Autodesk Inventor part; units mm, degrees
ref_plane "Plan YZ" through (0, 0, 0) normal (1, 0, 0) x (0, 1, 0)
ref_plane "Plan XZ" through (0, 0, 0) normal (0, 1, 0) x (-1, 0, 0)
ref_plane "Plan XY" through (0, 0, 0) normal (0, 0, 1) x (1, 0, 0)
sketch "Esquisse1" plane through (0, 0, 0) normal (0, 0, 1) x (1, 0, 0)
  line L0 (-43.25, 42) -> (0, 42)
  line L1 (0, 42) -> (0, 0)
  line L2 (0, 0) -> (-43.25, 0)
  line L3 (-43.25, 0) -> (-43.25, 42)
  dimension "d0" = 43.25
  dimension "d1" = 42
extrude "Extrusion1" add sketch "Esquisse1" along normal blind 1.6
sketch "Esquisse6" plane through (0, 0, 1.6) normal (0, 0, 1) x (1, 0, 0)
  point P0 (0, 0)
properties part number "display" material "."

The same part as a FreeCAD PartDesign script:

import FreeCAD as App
import Part
import Sketcher


def add_polygon(sketch, points):
    """Adds a closed chain of lines whose ends are joined by coincident constraints."""
    first, n = sketch.GeometryCount, len(points)
    for a, b in zip(points, points[1:] + points[:1]):
        sketch.addGeometry(Part.LineSegment(App.Vector(*a, 0), App.Vector(*b, 0)), False)
    for i in range(n):
        sketch.addConstraint(Sketcher.Constraint("Coincident", first + i, 2, first + (i + 1) % n, 1))

doc = App.newDocument("Part")
body = doc.addObject("PartDesign::Body", "Body")

# Sketch on XY plane
sketch1 = body.newObject("Sketcher::SketchObject", "Sketch")
sketch1.AttachmentSupport = (doc.getObject("XY_Plane"), [""])
sketch1.MapMode = "FlatFace"
add_polygon(sketch1, [(0, 42), (-43, 42), (-43, 0), (0, 0)])  # lines 0-3
sketch1.addConstraint(Sketcher.Constraint("Horizontal", 0))
sketch1.addConstraint(Sketcher.Constraint("Vertical", 1))
sketch1.addConstraint(Sketcher.Constraint("Horizontal", 2))
sketch1.addConstraint(Sketcher.Constraint("Vertical", 3))
sketch1.addConstraint(Sketcher.Constraint("Coincident", 2, 2, -1, 1))
sketch1.addConstraint(Sketcher.Constraint("DistanceY", 1, 2, 1, 1, 42.0))
sketch1.addConstraint(Sketcher.Constraint("DistanceX", 0, 2, 0, 1, 43.25))
pad1 = body.newObject("PartDesign::Pad", "Pad")
pad1.Profile = sketch1
pad1.Length = 1.6

doc.recompute()
